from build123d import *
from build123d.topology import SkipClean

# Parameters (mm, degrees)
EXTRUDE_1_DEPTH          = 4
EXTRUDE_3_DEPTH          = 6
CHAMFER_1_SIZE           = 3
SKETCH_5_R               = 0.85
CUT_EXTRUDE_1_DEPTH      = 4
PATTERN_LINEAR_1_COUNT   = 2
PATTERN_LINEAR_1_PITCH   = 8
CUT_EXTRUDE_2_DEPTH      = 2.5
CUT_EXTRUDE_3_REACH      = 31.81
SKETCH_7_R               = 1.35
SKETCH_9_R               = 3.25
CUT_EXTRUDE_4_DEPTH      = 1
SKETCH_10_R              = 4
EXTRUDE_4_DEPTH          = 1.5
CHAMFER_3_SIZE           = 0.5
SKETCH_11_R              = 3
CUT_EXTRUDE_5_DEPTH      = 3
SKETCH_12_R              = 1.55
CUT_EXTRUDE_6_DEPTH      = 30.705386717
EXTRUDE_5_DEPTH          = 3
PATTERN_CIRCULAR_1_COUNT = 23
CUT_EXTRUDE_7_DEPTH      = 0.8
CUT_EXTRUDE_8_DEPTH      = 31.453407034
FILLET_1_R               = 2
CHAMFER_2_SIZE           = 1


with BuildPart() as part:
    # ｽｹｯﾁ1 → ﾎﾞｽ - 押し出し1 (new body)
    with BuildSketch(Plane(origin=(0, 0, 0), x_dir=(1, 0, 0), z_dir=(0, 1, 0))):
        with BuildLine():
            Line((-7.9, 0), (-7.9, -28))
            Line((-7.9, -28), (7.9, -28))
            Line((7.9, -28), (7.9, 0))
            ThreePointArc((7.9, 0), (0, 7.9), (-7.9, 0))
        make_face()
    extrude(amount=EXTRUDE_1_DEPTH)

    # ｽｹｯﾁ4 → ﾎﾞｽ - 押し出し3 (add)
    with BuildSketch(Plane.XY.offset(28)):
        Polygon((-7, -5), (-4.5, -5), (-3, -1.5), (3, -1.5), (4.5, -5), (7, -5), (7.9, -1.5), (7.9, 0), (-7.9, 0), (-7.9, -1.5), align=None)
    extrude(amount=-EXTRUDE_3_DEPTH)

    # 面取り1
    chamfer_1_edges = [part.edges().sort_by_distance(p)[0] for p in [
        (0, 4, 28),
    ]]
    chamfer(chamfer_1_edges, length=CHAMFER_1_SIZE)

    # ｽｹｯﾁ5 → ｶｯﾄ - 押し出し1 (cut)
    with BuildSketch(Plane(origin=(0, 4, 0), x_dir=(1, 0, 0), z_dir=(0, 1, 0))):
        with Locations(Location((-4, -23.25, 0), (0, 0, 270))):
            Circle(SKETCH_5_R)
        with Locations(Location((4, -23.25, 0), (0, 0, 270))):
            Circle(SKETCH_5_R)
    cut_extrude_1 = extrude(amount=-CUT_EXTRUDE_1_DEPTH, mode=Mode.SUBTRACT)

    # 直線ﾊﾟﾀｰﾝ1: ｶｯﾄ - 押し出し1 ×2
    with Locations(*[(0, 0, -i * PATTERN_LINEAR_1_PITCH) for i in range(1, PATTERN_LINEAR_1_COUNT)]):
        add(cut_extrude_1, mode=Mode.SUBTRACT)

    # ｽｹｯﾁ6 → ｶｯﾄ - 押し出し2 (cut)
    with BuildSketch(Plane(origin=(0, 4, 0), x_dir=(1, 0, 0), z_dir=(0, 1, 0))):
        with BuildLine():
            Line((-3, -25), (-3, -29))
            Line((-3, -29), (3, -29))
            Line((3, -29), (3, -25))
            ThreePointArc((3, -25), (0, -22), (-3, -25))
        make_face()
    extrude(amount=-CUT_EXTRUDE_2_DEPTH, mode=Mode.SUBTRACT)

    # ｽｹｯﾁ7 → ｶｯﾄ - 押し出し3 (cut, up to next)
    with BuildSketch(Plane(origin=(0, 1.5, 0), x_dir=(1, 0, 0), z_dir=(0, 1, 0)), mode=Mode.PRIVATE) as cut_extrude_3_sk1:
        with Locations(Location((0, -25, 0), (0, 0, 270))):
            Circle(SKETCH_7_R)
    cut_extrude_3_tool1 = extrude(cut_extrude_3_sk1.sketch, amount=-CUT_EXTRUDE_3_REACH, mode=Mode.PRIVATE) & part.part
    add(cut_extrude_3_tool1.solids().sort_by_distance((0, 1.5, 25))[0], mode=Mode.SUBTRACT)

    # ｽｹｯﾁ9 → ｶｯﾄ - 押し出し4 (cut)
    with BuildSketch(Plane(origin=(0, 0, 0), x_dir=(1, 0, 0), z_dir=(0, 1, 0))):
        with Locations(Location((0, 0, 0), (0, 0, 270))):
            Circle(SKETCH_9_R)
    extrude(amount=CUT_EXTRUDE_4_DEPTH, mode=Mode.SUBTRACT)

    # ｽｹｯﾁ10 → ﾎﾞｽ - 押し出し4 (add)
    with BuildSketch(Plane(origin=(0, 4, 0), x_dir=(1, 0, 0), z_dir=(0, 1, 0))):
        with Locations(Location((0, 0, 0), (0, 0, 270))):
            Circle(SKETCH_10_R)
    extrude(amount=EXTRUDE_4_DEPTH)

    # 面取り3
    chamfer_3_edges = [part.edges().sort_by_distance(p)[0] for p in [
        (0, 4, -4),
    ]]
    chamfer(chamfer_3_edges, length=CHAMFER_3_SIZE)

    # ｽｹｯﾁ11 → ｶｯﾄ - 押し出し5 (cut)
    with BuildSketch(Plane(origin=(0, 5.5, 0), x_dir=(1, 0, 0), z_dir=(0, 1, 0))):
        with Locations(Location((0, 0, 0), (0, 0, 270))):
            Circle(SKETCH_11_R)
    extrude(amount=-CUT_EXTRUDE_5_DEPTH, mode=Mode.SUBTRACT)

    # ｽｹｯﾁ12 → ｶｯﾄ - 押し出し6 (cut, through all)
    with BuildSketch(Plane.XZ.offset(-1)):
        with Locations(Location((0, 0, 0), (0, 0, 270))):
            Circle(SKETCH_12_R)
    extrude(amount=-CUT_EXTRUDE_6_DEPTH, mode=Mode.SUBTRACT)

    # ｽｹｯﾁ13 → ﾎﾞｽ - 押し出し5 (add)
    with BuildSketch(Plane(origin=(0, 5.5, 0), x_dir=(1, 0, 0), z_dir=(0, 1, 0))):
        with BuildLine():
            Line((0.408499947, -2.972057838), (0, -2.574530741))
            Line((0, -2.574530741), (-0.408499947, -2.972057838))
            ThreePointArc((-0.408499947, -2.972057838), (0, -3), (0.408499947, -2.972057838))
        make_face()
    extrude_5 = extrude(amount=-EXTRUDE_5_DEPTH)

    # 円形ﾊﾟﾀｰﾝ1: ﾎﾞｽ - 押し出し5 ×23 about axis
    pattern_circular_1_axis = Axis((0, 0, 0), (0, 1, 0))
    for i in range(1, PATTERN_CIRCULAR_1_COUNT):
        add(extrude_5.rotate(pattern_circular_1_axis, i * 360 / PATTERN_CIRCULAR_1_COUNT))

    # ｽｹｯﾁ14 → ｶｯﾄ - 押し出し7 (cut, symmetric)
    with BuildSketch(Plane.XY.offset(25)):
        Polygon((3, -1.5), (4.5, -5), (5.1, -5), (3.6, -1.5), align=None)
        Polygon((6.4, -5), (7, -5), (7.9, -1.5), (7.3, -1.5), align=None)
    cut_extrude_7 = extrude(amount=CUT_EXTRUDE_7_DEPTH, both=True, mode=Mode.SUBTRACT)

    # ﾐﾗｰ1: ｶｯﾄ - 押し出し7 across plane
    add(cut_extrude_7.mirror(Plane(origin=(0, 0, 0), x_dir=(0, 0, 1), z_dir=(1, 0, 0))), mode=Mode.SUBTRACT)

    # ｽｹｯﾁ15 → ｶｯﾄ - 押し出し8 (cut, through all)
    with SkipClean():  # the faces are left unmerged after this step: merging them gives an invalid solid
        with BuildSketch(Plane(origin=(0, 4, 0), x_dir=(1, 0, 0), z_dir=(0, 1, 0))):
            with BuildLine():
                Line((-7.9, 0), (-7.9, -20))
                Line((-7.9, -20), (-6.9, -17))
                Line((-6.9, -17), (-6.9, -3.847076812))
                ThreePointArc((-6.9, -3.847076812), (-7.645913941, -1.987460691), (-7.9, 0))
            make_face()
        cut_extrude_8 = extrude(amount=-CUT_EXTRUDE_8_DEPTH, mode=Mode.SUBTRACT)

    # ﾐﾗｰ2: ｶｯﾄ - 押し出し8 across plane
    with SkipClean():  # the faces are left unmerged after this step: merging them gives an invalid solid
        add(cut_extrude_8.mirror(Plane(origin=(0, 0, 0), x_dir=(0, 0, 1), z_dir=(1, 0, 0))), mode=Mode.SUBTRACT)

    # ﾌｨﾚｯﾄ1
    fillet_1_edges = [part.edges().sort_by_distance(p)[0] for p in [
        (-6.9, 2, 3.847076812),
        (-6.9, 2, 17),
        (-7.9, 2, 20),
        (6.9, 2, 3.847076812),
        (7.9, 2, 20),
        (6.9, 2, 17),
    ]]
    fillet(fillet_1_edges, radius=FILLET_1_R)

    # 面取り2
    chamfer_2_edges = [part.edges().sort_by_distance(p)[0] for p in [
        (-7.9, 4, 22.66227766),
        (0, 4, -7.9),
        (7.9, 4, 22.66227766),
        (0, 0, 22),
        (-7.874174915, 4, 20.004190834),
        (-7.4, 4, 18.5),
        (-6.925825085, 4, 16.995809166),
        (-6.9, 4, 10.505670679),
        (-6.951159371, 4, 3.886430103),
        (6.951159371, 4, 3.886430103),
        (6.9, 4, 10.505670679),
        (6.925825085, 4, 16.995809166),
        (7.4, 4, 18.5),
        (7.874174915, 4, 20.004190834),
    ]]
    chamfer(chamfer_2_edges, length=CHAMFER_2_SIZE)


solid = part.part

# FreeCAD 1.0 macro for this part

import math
import FreeCAD as App
import Part
import Sketcher
from FreeCAD import Vector


def edges_at(feature, points):
    """Names of the edges that pass closest to the given points."""
    edges = feature.Shape.Edges
    near = lambda p: min(range(len(edges)), key=lambda i: edges[i].distToShape(Part.Vertex(*p))[0])
    return sorted({f"Edge{near(p) + 1}" for p in points})


def add_polygon(sketch, points):
    """Adds a closed chain of lines whose ends are joined by coincident constraints."""
    first, n = sketch.GeometryCount, len(points)
    for a, b in zip(points, points[1:] + points[:1]):
        sketch.addGeometry(Part.LineSegment(App.Vector(*a, 0), App.Vector(*b, 0)), False)
    for i in range(n):
        sketch.addConstraint(Sketcher.Constraint("Coincident", first + i, 2, first + (i + 1) % n, 1))

doc = App.newDocument("Part")
params = doc.addObject("Spreadsheet::Sheet", "Params")
for row, (alias, value) in enumerate([
    ("sketch1_radius", "7.9 mm"),
    ("sketch1_height", "28 mm"),
    ("pad1_length", "4 mm"),
    ("sketch2_width", "6 mm"),
    ("sketch2_width2", "2.5 mm"),
    ("sketch2_width3", "15.8 mm"),
    ("sketch2_height", "1.5 mm"),
    ("pad2_length", "6 mm"),
    ("chamfer_size", "3 mm"),
    ("sketch3_diameter", "1.7 mm"),
    ("pocket1_length", "4 mm"),
    ("linearpattern_pitch", "8 mm"),
    ("sketch4_radius", "3 mm"),
    ("sketch4_height", "4 mm"),
    ("pocket2_length", "2.5 mm"),
    ("sketch5_diameter", "2.7 mm"),
    ("sketch6_diameter", "6.5 mm"),
    ("pocket4_length", "1 mm"),
    ("sketch7_diameter", "8 mm"),
    ("pad3_length", "1.5 mm"),
    ("chamfer2_size", "0.5 mm"),
    ("sketch8_diameter", "6 mm"),
    ("pocket5_length", "3 mm"),
    ("sketch9_diameter", "3.1 mm"),
    ("sketch10_radius", "3 mm"),
    ("sketch10_length", "0.57 mm"),
    ("pad4_length", "3 mm"),
    ("sketch11_width", "0.6 mm"),
    ("pocket7_length", "1.6 mm"),
    ("sketch12_radius", "7.9 mm"),
    ("sketch12_height", "20 mm"),
    ("fillet_radius", "2 mm"),
    ("chamfer3_size", "1 mm"),
], start=1):
    params.set(f"A{row}", alias)
    params.set(f"B{row}", "=" + value)
    params.setAlias(f"B{row}", alias)

body = doc.addObject("PartDesign::Body", "Body")

# Sketch on XZ plane
sketch1 = body.newObject("Sketcher::SketchObject", "Sketch")
sketch1.AttachmentSupport = (doc.getObject("XZ_Plane"), [""])
sketch1.MapMode = "FlatFace"
sketch1.addGeometry([
    Part.LineSegment(Vector(-8, 0, 0), Vector(-8, 28, 0)),
    Part.LineSegment(Vector(-8, 28, 0), Vector(8, 28, 0)),
    Part.LineSegment(Vector(8, 28, 0), Vector(8, 0, 0)),
    Part.ArcOfCircle(Part.Circle(Vector(0, 0, 0), Vector(0, 0, 1), 8), math.radians(180), math.radians(360)),
], False)
sketch1.addConstraint([
    Sketcher.Constraint("Coincident", 0, 2, 1, 1),
    Sketcher.Constraint("Coincident", 1, 2, 2, 1),
    Sketcher.Constraint("Tangent", 2, 2, 3, 2),
    Sketcher.Constraint("Tangent", 3, 1, 0, 1),
    Sketcher.Constraint("Vertical", 0),
    Sketcher.Constraint("Horizontal", 1),
    Sketcher.Constraint("Vertical", 2),
    Sketcher.Constraint("Coincident", 3, 3, -1, 1),
    Sketcher.Constraint("Radius", 3, 7.9),
    Sketcher.Constraint("DistanceY", 0, 1, 0, 2, 28.0),
])
sketch1.setExpression("Constraints[8]", "Params.sketch1_radius")
sketch1.setExpression("Constraints[9]", "Params.sketch1_height")
pad1 = body.newObject("PartDesign::Pad", "Pad")
pad1.Profile = sketch1
pad1.setExpression("Length", "Params.pad1_length")
pad1.Reversed = True

# Sketch on XY plane
sketch2 = body.newObject("Sketcher::SketchObject", "Sketch001")
sketch2.AttachmentSupport = (doc.getObject("XY_Plane"), [""])
sketch2.MapMode = "FlatFace"
sketch2.AttachmentOffset = App.Placement(Vector(0, 0, 28), App.Rotation())
add_polygon(sketch2, [(-7, -5), (-4.5, -5), (-3, -1.5), (3, -1.5), (4.5, -5), (7, -5), (7.9, -1.5), (7.9, 0), (-7.9, 0), (-7.9, -1.5)])  # lines 0-9
sketch2.addConstraint([
    Sketcher.Constraint("Horizontal", 0),
    Sketcher.Constraint("Horizontal", 2),
    Sketcher.Constraint("Horizontal", 4),
    Sketcher.Constraint("Vertical", 6),
    Sketcher.Constraint("Horizontal", 7),
    Sketcher.Constraint("Vertical", 8),
    Sketcher.Constraint("Symmetric", 6, 2, 7, 2, -1, 1),
    Sketcher.Constraint("Symmetric", 0, 2, 3, 2, -2),
    Sketcher.Constraint("Horizontal", 2, 2, 5, 2),
    Sketcher.Constraint("Horizontal", 5, 2, 8, 2),
    Sketcher.Constraint("Equal", 0, 4),
    Sketcher.Constraint("Equal", 1, 3),
    Sketcher.Constraint("DistanceX", 2, 1, 2, 2, 6.0),
    Sketcher.Constraint("DistanceX", 0, 1, 0, 2, 2.5),
    Sketcher.Constraint("DistanceX", 7, 2, 7, 1, 15.8),
    Sketcher.Constraint("DistanceY", 6, 1, 6, 2, 1.5),
    Sketcher.Constraint("DistanceY", 0, 2, -1, 1, 5.0),
    Sketcher.Constraint("DistanceX", -1, 1, 4, 2, 7.0),
])
sketch2.setExpression("Constraints[22]", "Params.sketch2_width")
sketch2.setExpression("Constraints[23]", "Params.sketch2_width2")
sketch2.setExpression("Constraints[24]", "Params.sketch2_width3")
sketch2.setExpression("Constraints[25]", "Params.sketch2_height")
pad2 = body.newObject("PartDesign::Pad", "Pad001")
pad2.Profile = sketch2
pad2.setExpression("Length", "Params.pad2_length")
pad2.Reversed = True
doc.recompute()

chamfer = body.newObject("PartDesign::Chamfer", "Chamfer")
chamfer.Base = (pad2, edges_at(pad2, [(0, 4, 28)]))
chamfer.setExpression("Size", "Params.chamfer_size")

# Sketch on XZ plane
sketch3 = body.newObject("Sketcher::SketchObject", "Sketch002")
sketch3.AttachmentSupport = (doc.getObject("XZ_Plane"), [""])
sketch3.MapMode = "FlatFace"
sketch3.AttachmentOffset = App.Placement(Vector(0, 0, -4), App.Rotation())
sketch3.addGeometry([
    Part.Circle(Vector(-4, 23.2, 0), Vector(0, 0, 1), 0.8),
    Part.Circle(Vector(4, 23.2, 0), Vector(0, 0, 1), 0.8),
], False)
sketch3.addConstraint([
    Sketcher.Constraint("Equal", 0, 1),
    Sketcher.Constraint("Symmetric", 0, 3, 1, 3, -2),
    Sketcher.Constraint("Diameter", 0, 1.7),
    Sketcher.Constraint("DistanceX", 0, 3, -1, 1, 4.0),
    Sketcher.Constraint("DistanceY", -1, 1, 0, 3, 23.25),
])
sketch3.setExpression("Constraints[2]", "Params.sketch3_diameter")
pocket1 = body.newObject("PartDesign::Pocket", "Pocket")
pocket1.Profile = sketch3
pocket1.setExpression("Length", "Params.pocket1_length")
pocket1.Reversed = True
doc.recompute()

linearpattern = body.newObject("PartDesign::LinearPattern", "LinearPattern")
linearpattern.Originals = [pocket1]
linearpattern.Direction = (doc.getObject("Z_Axis"), [""])
linearpattern.Mode = "offset"
linearpattern.setExpression("Offset", "Params.linearpattern_pitch")
linearpattern.Occurrences = 2
linearpattern.Reversed = True
body.Tip = linearpattern

# Sketch on XZ plane
sketch4 = body.newObject("Sketcher::SketchObject", "Sketch003")
sketch4.AttachmentSupport = (doc.getObject("XZ_Plane"), [""])
sketch4.MapMode = "FlatFace"
sketch4.AttachmentOffset = App.Placement(Vector(0, 0, -4), App.Rotation())
sketch4.addGeometry([
    Part.LineSegment(Vector(-3, 25, 0), Vector(-3, 29, 0)),
    Part.LineSegment(Vector(-3, 29, 0), Vector(3, 29, 0)),
    Part.LineSegment(Vector(3, 29, 0), Vector(3, 25, 0)),
    Part.ArcOfCircle(Part.Circle(Vector(0, 25, 0), Vector(0, 0, 1), 3), math.radians(180), math.radians(360)),
], False)
sketch4.addConstraint([
    Sketcher.Constraint("Coincident", 0, 2, 1, 1),
    Sketcher.Constraint("Coincident", 1, 2, 2, 1),
    Sketcher.Constraint("Tangent", 2, 2, 3, 2),
    Sketcher.Constraint("Tangent", 3, 1, 0, 1),
    Sketcher.Constraint("Vertical", 0),
    Sketcher.Constraint("Horizontal", 1),
    Sketcher.Constraint("Vertical", 2),
    Sketcher.Constraint("PointOnObject", 3, 3, -2),
    Sketcher.Constraint("Radius", 3, 3.0),
    Sketcher.Constraint("DistanceY", 0, 1, 0, 2, 4.0),
    Sketcher.Constraint("DistanceY", -1, 1, 3, 3, 25.0),
])
sketch4.setExpression("Constraints[8]", "Params.sketch4_radius")
sketch4.setExpression("Constraints[9]", "Params.sketch4_height")
pocket2 = body.newObject("PartDesign::Pocket", "Pocket001")
pocket2.Profile = sketch4
pocket2.setExpression("Length", "Params.pocket2_length")
pocket2.Reversed = True

# Sketch on XZ plane
sketch5 = body.newObject("Sketcher::SketchObject", "Sketch004")
sketch5.AttachmentSupport = (doc.getObject("XZ_Plane"), [""])
sketch5.MapMode = "FlatFace"
sketch5.AttachmentOffset = App.Placement(Vector(0, 0, -1.5), App.Rotation())
sketch5.addGeometry(Part.Circle(Vector(0, 25, 0), Vector(0, 0, 1), 1.4), False)
sketch5.addConstraint([
    Sketcher.Constraint("PointOnObject", 0, 3, -2),
    Sketcher.Constraint("Diameter", 0, 2.7),
    Sketcher.Constraint("DistanceY", -1, 1, 0, 3, 25.0),
])
sketch5.setExpression("Constraints[1]", "Params.sketch5_diameter")
pocket3 = body.newObject("PartDesign::Pocket", "Pocket002")
pocket3.Profile = sketch5
pocket3.Type = "UpToFirst"
pocket3.Reversed = True

# Sketch on XZ plane
sketch6 = body.newObject("Sketcher::SketchObject", "Sketch005")
sketch6.AttachmentSupport = (doc.getObject("XZ_Plane"), [""])
sketch6.MapMode = "FlatFace"
sketch6.addGeometry(Part.Circle(Vector(0, 0, 0), Vector(0, 0, 1), 3.2), False)
sketch6.addConstraint([
    Sketcher.Constraint("Coincident", 0, 3, -1, 1),
    Sketcher.Constraint("Diameter", 0, 6.5),
])
sketch6.setExpression("Constraints[1]", "Params.sketch6_diameter")
pocket4 = body.newObject("PartDesign::Pocket", "Pocket003")
pocket4.Profile = sketch6
pocket4.setExpression("Length", "Params.pocket4_length")

# Sketch on XZ plane
sketch7 = body.newObject("Sketcher::SketchObject", "Sketch006")
sketch7.AttachmentSupport = (doc.getObject("XZ_Plane"), [""])
sketch7.MapMode = "FlatFace"
sketch7.AttachmentOffset = App.Placement(Vector(0, 0, -4), App.Rotation())
sketch7.addGeometry(Part.Circle(Vector(0, 0, 0), Vector(0, 0, 1), 4), False)
sketch7.addConstraint([
    Sketcher.Constraint("Coincident", 0, 3, -1, 1),
    Sketcher.Constraint("Diameter", 0, 8.0),
])
sketch7.setExpression("Constraints[1]", "Params.sketch7_diameter")
pad3 = body.newObject("PartDesign::Pad", "Pad002")
pad3.Profile = sketch7
pad3.setExpression("Length", "Params.pad3_length")
pad3.Reversed = True
doc.recompute()

chamfer2 = body.newObject("PartDesign::Chamfer", "Chamfer001")
chamfer2.Base = (pad3, edges_at(pad3, [(0, 4, -4)]))
chamfer2.setExpression("Size", "Params.chamfer2_size")

# Sketch on XZ plane
sketch8 = body.newObject("Sketcher::SketchObject", "Sketch007")
sketch8.AttachmentSupport = (doc.getObject("XZ_Plane"), [""])
sketch8.MapMode = "FlatFace"
sketch8.AttachmentOffset = App.Placement(Vector(0, 0, -5.5), App.Rotation())
sketch8.addGeometry(Part.Circle(Vector(0, 0, 0), Vector(0, 0, 1), 3), False)
sketch8.addConstraint([
    Sketcher.Constraint("Coincident", 0, 3, -1, 1),
    Sketcher.Constraint("Diameter", 0, 6.0),
])
sketch8.setExpression("Constraints[1]", "Params.sketch8_diameter")
pocket5 = body.newObject("PartDesign::Pocket", "Pocket004")
pocket5.Profile = sketch8
pocket5.setExpression("Length", "Params.pocket5_length")
pocket5.Reversed = True

# Sketch on XZ plane
sketch9 = body.newObject("Sketcher::SketchObject", "Sketch008")
sketch9.AttachmentSupport = (doc.getObject("XZ_Plane"), [""])
sketch9.MapMode = "FlatFace"
sketch9.AttachmentOffset = App.Placement(Vector(0, 0, -1), App.Rotation())
sketch9.addGeometry(Part.Circle(Vector(0, 0, 0), Vector(0, 0, 1), 1.6), False)
sketch9.addConstraint([
    Sketcher.Constraint("Coincident", 0, 3, -1, 1),
    Sketcher.Constraint("Diameter", 0, 3.1),
])
sketch9.setExpression("Constraints[1]", "Params.sketch9_diameter")
pocket6 = body.newObject("PartDesign::Pocket", "Pocket005")
pocket6.Profile = sketch9
pocket6.Type = "ThroughAll"

# Sketch on XZ plane
sketch10 = body.newObject("Sketcher::SketchObject", "Sketch009")
sketch10.AttachmentSupport = (doc.getObject("XZ_Plane"), [""])
sketch10.MapMode = "FlatFace"
sketch10.AttachmentOffset = App.Placement(Vector(0, 0, -5.5), App.Rotation())
sketch10.addGeometry([
    Part.LineSegment(Vector(0.4, 3, 0), Vector(0, 2.6, 0)),
    Part.LineSegment(Vector(0, 2.6, 0), Vector(-0.4, 3, 0)),
    Part.ArcOfCircle(Part.Circle(Vector(0, 0, 0), Vector(0, 0, 1), 3), math.radians(82.17), math.radians(97.83)),
], False)
sketch10.addConstraint([
    Sketcher.Constraint("Coincident", 0, 2, 1, 1),
    Sketcher.Constraint("Coincident", 1, 2, 2, 2),
    Sketcher.Constraint("Coincident", 2, 1, 0, 1),
    Sketcher.Constraint("Coincident", 2, 3, -1, 1),
    Sketcher.Constraint("PointOnObject", 0, 2, -2),
    Sketcher.Constraint("Horizontal", 1, 2, 2, 1),
    Sketcher.Constraint("Radius", 2, 3.0),
    Sketcher.Constraint("Distance", 0, 0.57),
    Sketcher.Constraint("DistanceX", 1, 2, 2, 1, 0.817),
])
sketch10.setExpression("Constraints[6]", "Params.sketch10_radius")
sketch10.setExpression("Constraints[7]", "Params.sketch10_length")
pad4 = body.newObject("PartDesign::Pad", "Pad003")
pad4.Profile = sketch10
pad4.setExpression("Length", "Params.pad4_length")
doc.recompute()

polarpattern = body.newObject("PartDesign::PolarPattern", "PolarPattern")
polarpattern.Originals = [pad4]
polarpattern.Axis = (doc.getObject("Y_Axis"), [""])
polarpattern.Angle = 360
polarpattern.Occurrences = 23
body.Tip = polarpattern

# Sketch on XY plane
sketch11 = body.newObject("Sketcher::SketchObject", "Sketch010")
sketch11.AttachmentSupport = (doc.getObject("XY_Plane"), [""])
sketch11.MapMode = "FlatFace"
sketch11.AttachmentOffset = App.Placement(Vector(0, 0, 25), App.Rotation())
add_polygon(sketch11, [(3, -1.5), (4.5, -5), (5.1, -5), (3.6, -1.5)])  # lines 0-3
add_polygon(sketch11, [(6.4, -5), (7, -5), (7.9, -1.5), (7.3, -1.5)])  # lines 4-7
sketch11.addConstraint([
    Sketcher.Constraint("Horizontal", 1),
    Sketcher.Constraint("Horizontal", 3),
    Sketcher.Constraint("Horizontal", 4),
    Sketcher.Constraint("Horizontal", 6),
    Sketcher.Constraint("Parallel", 0, 2),
    Sketcher.Constraint("Parallel", 5, 7),
    Sketcher.Constraint("Horizontal", 1, 2, 4, 2),
    Sketcher.Constraint("Horizontal", 3, 2, 5, 2),
    Sketcher.Constraint("Equal", 3, 4),
    Sketcher.Constraint("DistanceX", 1, 1, 1, 2, 0.6),
    Sketcher.Constraint("DistanceY", 0, 2, -1, 1, 5.0),
    Sketcher.Constraint("DistanceX", -1, 1, 3, 2, 3.0),
    Sketcher.Constraint("DistanceX", -1, 1, 4, 2, 7.0),
    Sketcher.Constraint("DistanceX", -1, 1, 0, 2, 4.5),
    Sketcher.Constraint("DistanceY", 2, 2, -1, 1, 1.5),
    Sketcher.Constraint("DistanceX", -1, 1, 5, 2, 7.9),
])
sketch11.setExpression("Constraints[17]", "Params.sketch11_width")
pocket7 = body.newObject("PartDesign::Pocket", "Pocket006")
pocket7.Profile = sketch11
pocket7.setExpression("Length", "Params.pocket7_length")
pocket7.Midplane = True
doc.recompute()

mirrored = body.newObject("PartDesign::Mirrored", "Mirrored")
mirrored.Originals = [pocket7]
mirrored.MirrorPlane = (doc.getObject("YZ_Plane"), [""])
body.Tip = mirrored

# Sketch on XZ plane
sketch12 = body.newObject("Sketcher::SketchObject", "Sketch011")
sketch12.AttachmentSupport = (doc.getObject("XZ_Plane"), [""])
sketch12.MapMode = "FlatFace"
sketch12.AttachmentOffset = App.Placement(Vector(0, 0, -4), App.Rotation())
sketch12.addGeometry([
    Part.LineSegment(Vector(-7.9, 0, 0), Vector(-7.9, 20, 0)),
    Part.LineSegment(Vector(-7.9, 20, 0), Vector(-6.9, 17, 0)),
    Part.LineSegment(Vector(-6.9, 17, 0), Vector(-6.9, 3.8, 0)),
    Part.ArcOfCircle(Part.Circle(Vector(0, 0, 0), Vector(0, 0, 1), 7.9), math.radians(151), math.radians(180)),
], False)
sketch12.addConstraint([
    Sketcher.Constraint("Coincident", 0, 2, 1, 1),
    Sketcher.Constraint("Coincident", 1, 2, 2, 1),
    Sketcher.Constraint("Coincident", 2, 2, 3, 1),
    Sketcher.Constraint("Tangent", 3, 2, 0, 1),
    Sketcher.Constraint("Vertical", 0),
    Sketcher.Constraint("Vertical", 2),
    Sketcher.Constraint("Coincident", 3, 3, -1, 1),
    Sketcher.Constraint("Radius", 3, 7.9),
    Sketcher.Constraint("DistanceY", 0, 1, 0, 2, 20.0),
    Sketcher.Constraint("DistanceY", -1, 1, 1, 2, 17.0),
    Sketcher.Constraint("DistanceX", 0, 2, 1, 2, 1.0),
])
sketch12.setExpression("Constraints[7]", "Params.sketch12_radius")
sketch12.setExpression("Constraints[8]", "Params.sketch12_height")
pocket8 = body.newObject("PartDesign::Pocket", "Pocket007")
pocket8.Profile = sketch12
pocket8.Type = "ThroughAll"
pocket8.Reversed = True
doc.recompute()

mirrored2 = body.newObject("PartDesign::Mirrored", "Mirrored001")
mirrored2.Originals = [pocket8]
mirrored2.MirrorPlane = (doc.getObject("YZ_Plane"), [""])
body.Tip = mirrored2
doc.recompute()

fillet = body.newObject("PartDesign::Fillet", "Fillet")
fillet.Base = (mirrored2, edges_at(mirrored2, [
    (-6.9, 2, 3.847),
    (-6.9, 2, 17),
    (-7.9, 2, 20),
    (6.9, 2, 3.847),
    (7.9, 2, 20),
    (6.9, 2, 17),
]))
fillet.setExpression("Radius", "Params.fillet_radius")
doc.recompute()

chamfer3 = body.newObject("PartDesign::Chamfer", "Chamfer002")
chamfer3.Base = (fillet, edges_at(fillet, [
    (-7.9, 4, 22.662),
    (0, 4, -7.9),
    (7.9, 4, 22.662),
    (0, 0, 22),
    (-7.874, 4, 20.004),
    (-7.4, 4, 18.5),
    (-6.926, 4, 16.996),
    (-6.9, 4, 10.506),
    (-6.951, 4, 3.886),
    (6.951, 4, 3.886),
    (6.9, 4, 10.506),
    (6.926, 4, 16.996),
    (7.4, 4, 18.5),
    (7.874, 4, 20.004),
]))
chamfer3.setExpression("Size", "Params.chamfer3_size")

doc.recompute()
